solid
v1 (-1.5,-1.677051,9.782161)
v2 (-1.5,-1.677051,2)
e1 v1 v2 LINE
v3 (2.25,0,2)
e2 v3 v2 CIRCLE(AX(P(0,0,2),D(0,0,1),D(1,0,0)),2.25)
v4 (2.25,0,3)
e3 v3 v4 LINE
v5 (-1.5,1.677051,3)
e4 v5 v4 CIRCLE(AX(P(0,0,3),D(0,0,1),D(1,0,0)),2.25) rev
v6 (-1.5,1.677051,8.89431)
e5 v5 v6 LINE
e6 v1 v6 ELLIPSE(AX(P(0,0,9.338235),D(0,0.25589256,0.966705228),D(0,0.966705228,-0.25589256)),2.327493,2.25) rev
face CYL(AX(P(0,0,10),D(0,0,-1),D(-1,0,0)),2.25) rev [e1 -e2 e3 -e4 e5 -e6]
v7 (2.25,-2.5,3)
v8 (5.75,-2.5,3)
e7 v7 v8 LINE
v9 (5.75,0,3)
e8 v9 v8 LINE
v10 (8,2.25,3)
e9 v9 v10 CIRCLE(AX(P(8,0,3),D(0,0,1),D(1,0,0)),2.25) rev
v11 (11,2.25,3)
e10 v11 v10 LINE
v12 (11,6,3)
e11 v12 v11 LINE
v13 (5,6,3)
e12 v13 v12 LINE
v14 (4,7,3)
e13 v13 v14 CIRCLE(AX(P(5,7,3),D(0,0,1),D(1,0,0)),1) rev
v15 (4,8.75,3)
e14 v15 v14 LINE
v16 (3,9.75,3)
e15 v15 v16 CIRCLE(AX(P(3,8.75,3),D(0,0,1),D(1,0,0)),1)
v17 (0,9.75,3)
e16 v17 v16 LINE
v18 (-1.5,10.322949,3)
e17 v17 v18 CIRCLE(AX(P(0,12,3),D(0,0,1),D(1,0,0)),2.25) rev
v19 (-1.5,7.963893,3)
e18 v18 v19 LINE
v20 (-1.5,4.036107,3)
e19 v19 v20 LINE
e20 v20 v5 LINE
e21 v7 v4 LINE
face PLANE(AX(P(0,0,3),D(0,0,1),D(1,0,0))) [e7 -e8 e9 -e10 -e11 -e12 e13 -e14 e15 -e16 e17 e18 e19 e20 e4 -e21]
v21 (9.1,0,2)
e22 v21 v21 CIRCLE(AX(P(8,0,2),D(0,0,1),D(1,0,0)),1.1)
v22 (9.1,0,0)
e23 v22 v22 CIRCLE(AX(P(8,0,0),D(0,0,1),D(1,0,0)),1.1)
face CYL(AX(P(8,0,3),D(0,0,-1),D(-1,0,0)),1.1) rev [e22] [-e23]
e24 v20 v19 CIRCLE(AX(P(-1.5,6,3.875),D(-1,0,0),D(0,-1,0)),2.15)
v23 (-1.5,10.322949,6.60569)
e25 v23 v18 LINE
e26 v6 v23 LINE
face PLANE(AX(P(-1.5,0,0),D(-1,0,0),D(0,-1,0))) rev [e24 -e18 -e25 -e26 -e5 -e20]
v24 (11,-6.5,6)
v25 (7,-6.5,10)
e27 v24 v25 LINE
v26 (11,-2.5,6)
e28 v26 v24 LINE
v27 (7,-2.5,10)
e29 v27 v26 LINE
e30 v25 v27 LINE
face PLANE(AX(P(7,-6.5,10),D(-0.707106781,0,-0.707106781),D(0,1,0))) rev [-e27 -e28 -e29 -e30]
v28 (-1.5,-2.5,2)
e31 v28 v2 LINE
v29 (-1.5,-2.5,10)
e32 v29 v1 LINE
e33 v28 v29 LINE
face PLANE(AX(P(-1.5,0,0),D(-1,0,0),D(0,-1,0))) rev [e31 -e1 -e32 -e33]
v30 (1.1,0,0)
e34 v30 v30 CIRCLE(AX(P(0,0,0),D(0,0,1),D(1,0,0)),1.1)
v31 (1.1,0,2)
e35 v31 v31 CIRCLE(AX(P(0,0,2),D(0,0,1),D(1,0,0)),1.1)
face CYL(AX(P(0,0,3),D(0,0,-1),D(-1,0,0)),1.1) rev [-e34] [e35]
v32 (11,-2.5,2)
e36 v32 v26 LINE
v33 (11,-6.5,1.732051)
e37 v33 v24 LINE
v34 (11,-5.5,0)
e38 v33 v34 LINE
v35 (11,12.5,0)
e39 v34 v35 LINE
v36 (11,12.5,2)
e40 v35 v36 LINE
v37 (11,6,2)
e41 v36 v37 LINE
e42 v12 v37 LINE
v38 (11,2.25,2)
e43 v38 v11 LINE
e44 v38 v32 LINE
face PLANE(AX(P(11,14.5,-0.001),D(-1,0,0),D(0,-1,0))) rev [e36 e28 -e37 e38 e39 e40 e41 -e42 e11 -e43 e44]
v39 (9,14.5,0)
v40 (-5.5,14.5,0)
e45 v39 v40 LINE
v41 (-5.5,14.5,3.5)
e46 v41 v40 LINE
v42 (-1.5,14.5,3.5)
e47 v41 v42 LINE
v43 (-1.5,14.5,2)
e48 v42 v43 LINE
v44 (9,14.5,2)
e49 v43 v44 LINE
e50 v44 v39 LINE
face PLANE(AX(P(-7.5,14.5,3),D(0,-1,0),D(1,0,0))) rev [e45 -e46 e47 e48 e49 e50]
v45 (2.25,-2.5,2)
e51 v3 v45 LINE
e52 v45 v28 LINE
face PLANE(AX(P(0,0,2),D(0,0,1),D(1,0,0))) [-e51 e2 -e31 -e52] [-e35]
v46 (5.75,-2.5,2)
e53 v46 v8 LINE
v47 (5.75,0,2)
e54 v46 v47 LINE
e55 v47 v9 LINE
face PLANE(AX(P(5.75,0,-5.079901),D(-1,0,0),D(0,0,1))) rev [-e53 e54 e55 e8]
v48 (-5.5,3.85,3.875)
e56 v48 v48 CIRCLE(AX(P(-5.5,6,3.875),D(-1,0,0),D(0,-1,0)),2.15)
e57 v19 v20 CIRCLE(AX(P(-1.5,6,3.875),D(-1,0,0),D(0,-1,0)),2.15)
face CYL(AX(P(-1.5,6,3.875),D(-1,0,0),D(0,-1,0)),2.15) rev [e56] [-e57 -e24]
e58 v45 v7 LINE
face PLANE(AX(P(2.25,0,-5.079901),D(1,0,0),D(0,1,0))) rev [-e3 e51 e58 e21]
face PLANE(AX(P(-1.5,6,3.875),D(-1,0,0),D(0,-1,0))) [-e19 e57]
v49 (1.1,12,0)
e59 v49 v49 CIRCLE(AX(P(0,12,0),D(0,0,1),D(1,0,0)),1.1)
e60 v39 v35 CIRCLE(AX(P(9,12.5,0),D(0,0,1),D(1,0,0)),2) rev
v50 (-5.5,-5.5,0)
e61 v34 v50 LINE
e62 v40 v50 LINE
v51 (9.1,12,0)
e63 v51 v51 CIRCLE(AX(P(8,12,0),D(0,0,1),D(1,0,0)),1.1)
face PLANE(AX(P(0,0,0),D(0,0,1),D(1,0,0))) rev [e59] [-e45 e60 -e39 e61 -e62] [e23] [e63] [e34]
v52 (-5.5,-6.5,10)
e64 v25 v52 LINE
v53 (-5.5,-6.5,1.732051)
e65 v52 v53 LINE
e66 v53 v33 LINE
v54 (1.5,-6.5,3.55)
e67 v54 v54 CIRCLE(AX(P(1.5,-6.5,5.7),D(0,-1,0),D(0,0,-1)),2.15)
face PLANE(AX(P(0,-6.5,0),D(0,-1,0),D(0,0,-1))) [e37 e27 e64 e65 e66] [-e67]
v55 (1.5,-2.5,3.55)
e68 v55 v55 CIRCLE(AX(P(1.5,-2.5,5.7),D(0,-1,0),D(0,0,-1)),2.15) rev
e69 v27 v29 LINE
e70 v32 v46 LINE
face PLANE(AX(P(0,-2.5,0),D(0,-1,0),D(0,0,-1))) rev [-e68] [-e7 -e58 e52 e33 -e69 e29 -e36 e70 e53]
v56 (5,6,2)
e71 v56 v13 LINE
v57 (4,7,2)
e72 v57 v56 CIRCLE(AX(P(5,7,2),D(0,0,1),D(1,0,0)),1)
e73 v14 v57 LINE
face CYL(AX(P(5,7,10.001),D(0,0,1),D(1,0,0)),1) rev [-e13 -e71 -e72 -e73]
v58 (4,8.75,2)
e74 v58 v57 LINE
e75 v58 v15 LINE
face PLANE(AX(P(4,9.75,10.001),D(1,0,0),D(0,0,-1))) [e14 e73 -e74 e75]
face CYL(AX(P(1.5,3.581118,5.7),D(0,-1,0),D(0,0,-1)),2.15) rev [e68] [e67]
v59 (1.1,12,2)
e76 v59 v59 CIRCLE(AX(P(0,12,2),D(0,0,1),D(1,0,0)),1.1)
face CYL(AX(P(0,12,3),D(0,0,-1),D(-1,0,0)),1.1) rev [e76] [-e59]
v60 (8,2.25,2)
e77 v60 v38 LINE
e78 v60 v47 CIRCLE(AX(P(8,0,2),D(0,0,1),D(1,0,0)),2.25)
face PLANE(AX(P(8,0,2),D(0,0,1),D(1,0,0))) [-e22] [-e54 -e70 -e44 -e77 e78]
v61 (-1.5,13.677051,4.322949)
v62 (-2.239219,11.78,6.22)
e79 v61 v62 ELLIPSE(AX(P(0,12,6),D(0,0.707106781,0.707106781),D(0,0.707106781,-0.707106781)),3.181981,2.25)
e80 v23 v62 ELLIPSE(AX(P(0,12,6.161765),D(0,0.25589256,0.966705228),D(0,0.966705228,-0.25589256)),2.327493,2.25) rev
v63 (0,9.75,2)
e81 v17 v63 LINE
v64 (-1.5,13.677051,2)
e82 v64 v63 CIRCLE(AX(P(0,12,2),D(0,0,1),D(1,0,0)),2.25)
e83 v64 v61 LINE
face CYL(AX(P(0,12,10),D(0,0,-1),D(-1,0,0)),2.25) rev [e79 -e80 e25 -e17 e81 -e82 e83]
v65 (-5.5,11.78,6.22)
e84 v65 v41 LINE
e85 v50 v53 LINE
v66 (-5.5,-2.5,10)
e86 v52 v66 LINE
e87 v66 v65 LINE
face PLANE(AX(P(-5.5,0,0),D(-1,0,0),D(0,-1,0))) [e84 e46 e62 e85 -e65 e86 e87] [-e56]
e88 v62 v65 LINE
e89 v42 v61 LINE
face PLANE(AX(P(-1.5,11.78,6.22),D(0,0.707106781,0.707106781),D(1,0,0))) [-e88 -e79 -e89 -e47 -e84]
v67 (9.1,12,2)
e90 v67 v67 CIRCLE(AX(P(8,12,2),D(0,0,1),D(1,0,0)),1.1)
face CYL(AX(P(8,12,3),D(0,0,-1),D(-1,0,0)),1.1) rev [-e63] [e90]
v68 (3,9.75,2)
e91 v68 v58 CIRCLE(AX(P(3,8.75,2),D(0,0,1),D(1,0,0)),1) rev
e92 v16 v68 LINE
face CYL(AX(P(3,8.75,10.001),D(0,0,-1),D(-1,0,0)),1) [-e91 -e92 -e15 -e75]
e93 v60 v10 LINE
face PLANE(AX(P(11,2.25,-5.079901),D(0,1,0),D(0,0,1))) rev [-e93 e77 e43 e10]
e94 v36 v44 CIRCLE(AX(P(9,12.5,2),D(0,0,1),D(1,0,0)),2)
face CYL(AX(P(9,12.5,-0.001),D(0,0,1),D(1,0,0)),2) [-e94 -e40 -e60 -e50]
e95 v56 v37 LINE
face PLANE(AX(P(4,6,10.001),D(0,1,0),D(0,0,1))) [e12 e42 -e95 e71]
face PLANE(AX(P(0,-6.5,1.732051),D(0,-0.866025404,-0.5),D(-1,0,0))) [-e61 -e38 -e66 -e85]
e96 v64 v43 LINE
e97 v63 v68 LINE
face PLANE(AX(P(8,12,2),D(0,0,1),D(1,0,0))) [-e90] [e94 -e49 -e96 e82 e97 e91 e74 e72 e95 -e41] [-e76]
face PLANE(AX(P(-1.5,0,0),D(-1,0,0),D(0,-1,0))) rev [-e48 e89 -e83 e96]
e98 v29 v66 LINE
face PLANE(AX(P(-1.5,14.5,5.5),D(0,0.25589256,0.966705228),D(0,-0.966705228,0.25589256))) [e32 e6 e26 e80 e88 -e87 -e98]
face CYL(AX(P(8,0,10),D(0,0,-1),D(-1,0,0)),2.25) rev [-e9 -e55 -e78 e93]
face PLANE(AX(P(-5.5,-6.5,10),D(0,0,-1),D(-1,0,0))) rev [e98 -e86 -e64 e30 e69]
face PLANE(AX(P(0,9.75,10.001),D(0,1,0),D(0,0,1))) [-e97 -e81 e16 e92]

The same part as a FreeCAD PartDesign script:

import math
import FreeCAD as App
import Part
import Sketcher


def edges_at(feature, points):
    """Names of the edges that pass closest to the given points."""
    edges = feature.Shape.Edges
    near = lambda p: min(range(len(edges)), key=lambda i: edges[i].distToShape(Part.Vertex(*p))[0])
    return sorted({f"Edge{near(p) + 1}" for p in points})

doc = App.newDocument("Part")
body = doc.addObject("PartDesign::Body", "Body")

sketch1 = doc.addObject("Sketcher::SketchObject", "Sketch")
body.addObject(sketch1)
sketch1.AttachmentSupport = (doc.XY_Plane, [""])
sketch1.MapMode = "FlatFace"
sketch1.addGeometry(Part.LineSegment(App.Vector(-7.5, 14.5, 0), App.Vector(-7.5, -2.5, 0)), False)
sketch1.addGeometry(Part.LineSegment(App.Vector(-7.5, -2.5, 0), App.Vector(15.5, -2.5, 0)), False)
sketch1.addGeometry(Part.LineSegment(App.Vector(15.5, -2.5, 0), App.Vector(15.5, 14.5, 0)), False)
sketch1.addGeometry(Part.LineSegment(App.Vector(15.5, 14.5, 0), App.Vector(-7.5, 14.5, 0)), False)
sketch1.addGeometry(Part.Circle(App.Vector(0, 0, 0), App.Vector(0, 0, 1), 1.1), False)
sketch1.addGeometry(Part.Circle(App.Vector(8, 0, 0), App.Vector(0, 0, 1), 1.1), False)
sketch1.addGeometry(Part.Circle(App.Vector(0, 12, 0), App.Vector(0, 0, 1), 1.1), False)
sketch1.addGeometry(Part.Circle(App.Vector(8, 12, 0), App.Vector(0, 0, 1), 1.1), False)
sketch1.addConstraint(Sketcher.Constraint("Coincident", 0, 2, 1, 1))
sketch1.addConstraint(Sketcher.Constraint("Coincident", 1, 2, 2, 1))
sketch1.addConstraint(Sketcher.Constraint("Coincident", 2, 2, 3, 1))
sketch1.addConstraint(Sketcher.Constraint("Coincident", 3, 2, 0, 1))
sketch1.addConstraint(Sketcher.Constraint("Vertical", 0))
sketch1.addConstraint(Sketcher.Constraint("Horizontal", 1))
sketch1.addConstraint(Sketcher.Constraint("Vertical", 2))
sketch1.addConstraint(Sketcher.Constraint("Horizontal", 3))
sketch1.addConstraint(Sketcher.Constraint("Coincident", 4, 3, -1, 1))
sketch1.addConstraint(Sketcher.Constraint("Equal", 4, 5))
sketch1.addConstraint(Sketcher.Constraint("Equal", 5, 6))
sketch1.addConstraint(Sketcher.Constraint("Equal", 6, 7))
sketch1.addConstraint(Sketcher.Constraint("PointOnObject", 5, 3, -1))
sketch1.addConstraint(Sketcher.Constraint("PointOnObject", 6, 3, -2))
sketch1.addConstraint(Sketcher.Constraint("Horizontal", 6, 3, 7, 3))
sketch1.addConstraint(Sketcher.Constraint("Vertical", 5, 3, 7, 3))
sketch1.addConstraint(Sketcher.Constraint("Diameter", 4, 2.2))
sketch1.addConstraint(Sketcher.Constraint("DistanceX", 1, 1, 1, 2, 23.0))
sketch1.addConstraint(Sketcher.Constraint("DistanceY", 0, 2, 0, 1, 17.0))
sketch1.addConstraint(Sketcher.Constraint("DistanceX", -1, 1, 5, 3, 8.0))
sketch1.addConstraint(Sketcher.Constraint("DistanceY", -1, 1, 6, 3, 12.0))
sketch1.addConstraint(Sketcher.Constraint("DistanceX", 0, 2, -1, 1, 7.5))
sketch1.addConstraint(Sketcher.Constraint("DistanceY", 0, 2, -1, 1, 2.5))
pad1 = doc.addObject("PartDesign::Pad", "Pad")
body.addObject(pad1)
pad1.Profile = sketch1
pad1.Length = 3

sketch2 = doc.addObject("Sketcher::SketchObject", "Sketch001")
body.addObject(sketch2)
sketch2.AttachmentSupport = (doc.YZ_Plane, [""])
sketch2.MapMode = "FlatFace"
sketch2.AttachmentOffset = App.Placement(App.Vector(0, 0, -7.5), App.Rotation())
sketch2.addGeometry(Part.LineSegment(App.Vector(-2, 10, 0), App.Vector(14, 6, 0)), False)
sketch2.addGeometry(Part.LineSegment(App.Vector(14, 6, 0), App.Vector(14, 0, 0)), False)
sketch2.addGeometry(Part.LineSegment(App.Vector(14, 0, 0), App.Vector(-2, 0, 0)), False)
sketch2.addGeometry(Part.LineSegment(App.Vector(-2, 0, 0), App.Vector(-2, 10, 0)), False)
sketch2.addConstraint(Sketcher.Constraint("Coincident", 0, 2, 1, 1))
sketch2.addConstraint(Sketcher.Constraint("Coincident", 1, 2, 2, 1))
sketch2.addConstraint(Sketcher.Constraint("Coincident", 2, 2, 3, 1))
sketch2.addConstraint(Sketcher.Constraint("Coincident", 3, 2, 0, 1))
sketch2.addConstraint(Sketcher.Constraint("Vertical", 1))
sketch2.addConstraint(Sketcher.Constraint("Horizontal", 2))
sketch2.addConstraint(Sketcher.Constraint("Vertical", 3))
sketch2.addConstraint(Sketcher.Constraint("PointOnObject", 1, 2, -1))
sketch2.addConstraint(Sketcher.Constraint("DistanceX", 2, 2, 2, 1, 17.0))
sketch2.addConstraint(Sketcher.Constraint("DistanceY", 3, 1, 3, 2, 10.0))
sketch2.addConstraint(Sketcher.Constraint("DistanceY", 1, 2, 1, 1, 5.5))
sketch2.addConstraint(Sketcher.Constraint("DistanceX", -1, 1, 0, 2, 14.5))
pad2 = doc.addObject("PartDesign::Pad", "Pad001")
body.addObject(pad2)
pad2.Profile = sketch2
pad2.Length = 6

sketch3 = doc.addObject("Sketcher::SketchObject", "Sketch002")
body.addObject(sketch3)
sketch3.AttachmentSupport = (doc.XY_Plane, [""])
sketch3.MapMode = "FlatFace"
sketch3.AttachmentOffset = App.Placement(App.Vector(0, 0, 3), App.Rotation())
sketch3.addGeometry(Part.Circle(App.Vector(0, 12, 0), App.Vector(0, 0, 1), 2.2), False)
sketch3.addGeometry(Part.Circle(App.Vector(8, 12, 0), App.Vector(0, 0, 1), 2.2), False)
sketch3.addGeometry(Part.Circle(App.Vector(0, 0, 0), App.Vector(0, 0, 1), 2.2), False)
sketch3.addGeometry(Part.Circle(App.Vector(8, 0, 0), App.Vector(0, 0, 1), 2.2), False)
sketch3.addConstraint(Sketcher.Constraint("Coincident", 2, 3, -1, 1))
sketch3.addConstraint(Sketcher.Constraint("Equal", 0, 1))
sketch3.addConstraint(Sketcher.Constraint("Equal", 1, 2))
sketch3.addConstraint(Sketcher.Constraint("Equal", 2, 3))
sketch3.addConstraint(Sketcher.Constraint("PointOnObject", 0, 3, -2))
sketch3.addConstraint(Sketcher.Constraint("PointOnObject", 3, 3, -1))
sketch3.addConstraint(Sketcher.Constraint("Horizontal", 0, 3, 1, 3))
sketch3.addConstraint(Sketcher.Constraint("Vertical", 1, 3, 3, 3))
sketch3.addConstraint(Sketcher.Constraint("Diameter", 0, 4.5))
sketch3.addConstraint(Sketcher.Constraint("DistanceY", -1, 1, 0, 3, 12.0))
sketch3.addConstraint(Sketcher.Constraint("DistanceX", -1, 1, 1, 3, 8.0))
pocket1 = doc.addObject("PartDesign::Pocket", "Pocket")
body.addObject(pocket1)
pocket1.Profile = sketch3
pocket1.Type = "TwoLengths"
pocket1.Length = 23.349497
pocket1.Length2 = 1
pocket1.Reversed = True

sketch4 = doc.addObject("Sketcher::SketchObject", "Sketch003")
body.addObject(sketch4)
sketch4.AttachmentSupport = (doc.XY_Plane, [""])
sketch4.MapMode = "FlatFace"
sketch4.AttachmentOffset = App.Placement(App.Vector(0, 0, 3), App.Rotation())
sketch4.addGeometry(Part.LineSegment(App.Vector(11, 14.5, 0), App.Vector(11, -2.5, 0)), False)
sketch4.addGeometry(Part.LineSegment(App.Vector(11, -2.5, 0), App.Vector(15.5, -2.5, 0)), False)
sketch4.addGeometry(Part.LineSegment(App.Vector(15.5, -2.5, 0), App.Vector(15.5, 14.5, 0)), False)
sketch4.addGeometry(Part.LineSegment(App.Vector(15.5, 14.5, 0), App.Vector(11, 14.5, 0)), False)
sketch4.addConstraint(Sketcher.Constraint("Coincident", 0, 2, 1, 1))
sketch4.addConstraint(Sketcher.Constraint("Coincident", 1, 2, 2, 1))
sketch4.addConstraint(Sketcher.Constraint("Coincident", 2, 2, 3, 1))
sketch4.addConstraint(Sketcher.Constraint("Coincident", 3, 2, 0, 1))
sketch4.addConstraint(Sketcher.Constraint("Vertical", 0))
sketch4.addConstraint(Sketcher.Constraint("Horizontal", 1))
sketch4.addConstraint(Sketcher.Constraint("Vertical", 2))
sketch4.addConstraint(Sketcher.Constraint("Horizontal", 3))
sketch4.addConstraint(Sketcher.Constraint("DistanceY", 0, 2, 0, 1, 17.0))
sketch4.addConstraint(Sketcher.Constraint("DistanceX", 1, 1, 1, 2, 4.5))
sketch4.addConstraint(Sketcher.Constraint("DistanceX", -1, 1, 0, 2, 11.0))
sketch4.addConstraint(Sketcher.Constraint("DistanceY", 0, 2, -1, 1, 2.5))
pocket2 = doc.addObject("PartDesign::Pocket", "Pocket001")
body.addObject(pocket2)
pocket2.Profile = sketch4
pocket2.Type = "UpToFirst"

sketch5 = doc.addObject("Sketcher::SketchObject", "Sketch004")
body.addObject(sketch5)
sketch5.AttachmentSupport = (doc.YZ_Plane, [""])
sketch5.MapMode = "FlatFace"
sketch5.AttachmentOffset = App.Placement(App.Vector(0, 0, -7.5), App.Rotation())
sketch5.addGeometry(Part.LineSegment(App.Vector(14, 0, 0), App.Vector(-2, 0, 0)), False)
sketch5.addGeometry(Part.LineSegment(App.Vector(-2, 0, 0), App.Vector(-2, 10, 0)), False)
sketch5.addGeometry(Part.LineSegment(App.Vector(-2, 10, 0), App.Vector(14, 6, 0)), False)
sketch5.addGeometry(Part.LineSegment(App.Vector(14, 6, 0), App.Vector(14, 0, 0)), False)
sketch5.addConstraint(Sketcher.Constraint("Coincident", 0, 2, 1, 1))
sketch5.addConstraint(Sketcher.Constraint("Coincident", 1, 2, 2, 1))
sketch5.addConstraint(Sketcher.Constraint("Coincident", 2, 2, 3, 1))
sketch5.addConstraint(Sketcher.Constraint("Coincident", 3, 2, 0, 1))
sketch5.addConstraint(Sketcher.Constraint("Horizontal", 0))
sketch5.addConstraint(Sketcher.Constraint("Vertical", 1))
sketch5.addConstraint(Sketcher.Constraint("Vertical", 3))
sketch5.addConstraint(Sketcher.Constraint("PointOnObject", 0, 2, -1))
sketch5.addConstraint(Sketcher.Constraint("DistanceX", 0, 2, 0, 1, 17.0))
sketch5.addConstraint(Sketcher.Constraint("DistanceY", 1, 1, 1, 2, 10.0))
sketch5.addConstraint(Sketcher.Constraint("DistanceY", 3, 2, 3, 1, 5.5))
sketch5.addConstraint(Sketcher.Constraint("DistanceX", 0, 2, -1, 1, 2.5))
pocket3 = doc.addObject("PartDesign::Pocket", "Pocket002")
body.addObject(pocket3)
pocket3.Profile = sketch5
pocket3.Length = 2
pocket3.Reversed = True

sketch6 = doc.addObject("Sketcher::SketchObject", "Sketch005")
body.addObject(sketch6)
sketch6.AttachmentSupport = (doc.YZ_Plane, [""])
sketch6.MapMode = "FlatFace"
sketch6.AttachmentOffset = App.Placement(App.Vector(0, 0, -5.5), App.Rotation())
sketch6.addGeometry(Part.Circle(App.Vector(6, 3.9, 0), App.Vector(0, 0, 1), 2.1), False)
sketch6.addConstraint(Sketcher.Constraint("Diameter", 0, 4.3))
sketch6.addConstraint(Sketcher.Constraint("DistanceX", -1, 1, 0, 3, 6.0))
sketch6.addConstraint(Sketcher.Constraint("DistanceY", -1, 1, 0, 3, 3.875))
pocket4 = doc.addObject("PartDesign::Pocket", "Pocket003")
body.addObject(pocket4)
pocket4.Profile = sketch6
pocket4.Length = 4
pocket4.Reversed = True

sketch7 = doc.addObject("Sketcher::SketchObject", "Sketch006")
body.addObject(sketch7)
sketch7.AttachmentSupport = (doc.XZ_Plane, [""])
sketch7.MapMode = "FlatFace"
sketch7.AttachmentOffset = App.Placement(App.Vector(0, 0, 2.5), App.Rotation())
sketch7.addGeometry(Part.LineSegment(App.Vector(-6, 10, 0), App.Vector(-6, 0, 0)), False)
sketch7.addGeometry(Part.LineSegment(App.Vector(-6, 0, 0), App.Vector(11, 0, 0)), False)
sketch7.addGeometry(Part.LineSegment(App.Vector(11, 0, 0), App.Vector(11, 10, 0)), False)
sketch7.addGeometry(Part.LineSegment(App.Vector(11, 10, 0), App.Vector(-6, 10, 0)), False)
sketch7.addConstraint(Sketcher.Constraint("Coincident", 0, 2, 1, 1))
sketch7.addConstraint(Sketcher.Constraint("Coincident", 1, 2, 2, 1))
sketch7.addConstraint(Sketcher.Constraint("Coincident", 2, 2, 3, 1))
sketch7.addConstraint(Sketcher.Constraint("Coincident", 3, 2, 0, 1))
sketch7.addConstraint(Sketcher.Constraint("Vertical", 0))
sketch7.addConstraint(Sketcher.Constraint("Horizontal", 1))
sketch7.addConstraint(Sketcher.Constraint("Vertical", 2))
sketch7.addConstraint(Sketcher.Constraint("Horizontal", 3))
sketch7.addConstraint(Sketcher.Constraint("PointOnObject", 0, 2, -1))
sketch7.addConstraint(Sketcher.Constraint("DistanceY", 0, 2, 0, 1, 10.0))
sketch7.addConstraint(Sketcher.Constraint("DistanceX", 1, 1, 1, 2, 16.5))
sketch7.addConstraint(Sketcher.Constraint("DistanceX", -1, 1, 1, 2, 11.0))
pad3 = doc.addObject("PartDesign::Pad", "Pad002")
body.addObject(pad3)
pad3.Profile = sketch7
pad3.Length = 4

sketch8 = doc.addObject("Sketcher::SketchObject", "Sketch007")
body.addObject(sketch8)
sketch8.AttachmentSupport = (doc.XZ_Plane, [""])
sketch8.MapMode = "FlatFace"
sketch8.AttachmentOffset = App.Placement(App.Vector(0, 0, 6.5), App.Rotation())
sketch8.addGeometry(Part.Circle(App.Vector(1.5, 5.7, 0), App.Vector(0, 0, 1), 2.1), False)
sketch8.addConstraint(Sketcher.Constraint("Diameter", 0, 4.3))
sketch8.addConstraint(Sketcher.Constraint("DistanceX", -1, 1, 0, 3, 1.5))
sketch8.addConstraint(Sketcher.Constraint("DistanceY", -1, 1, 0, 3, 5.7))
pocket5 = doc.addObject("PartDesign::Pocket", "Pocket004")
body.addObject(pocket5)
pocket5.Profile = sketch8
pocket5.Length = 4
doc.recompute()

chamfer = doc.addObject("PartDesign::Chamfer", "Chamfer")
body.addObject(chamfer)
chamfer.Base = (pocket5, edges_at(pocket5, [(2.75, -6.5, 0)]))
chamfer.ChamferType = "Two distances"
chamfer.Size = 1
chamfer.Size2 = 1.732051
doc.recompute()

chamfer2 = doc.addObject("PartDesign::Chamfer", "Chamfer001")
body.addObject(chamfer2)
chamfer2.Base = (chamfer, edges_at(chamfer, [(11, -4.5, 10)]))
chamfer2.Size = 4

sketch9 = doc.addObject("Sketcher::SketchObject", "Sketch008")
body.addObject(sketch9)
sketch9.AttachmentSupport = (doc.XY_Plane, [""])
sketch9.MapMode = "FlatFace"
sketch9.AttachmentOffset = App.Placement(App.Vector(0, 0, 3), App.Rotation())
sketch9.addGeometry(Part.LineSegment(App.Vector(-1.5, 14.5, 0), App.Vector(-1.5, 13.7, 0)), False)
sketch9.addGeometry(Part.ArcOfCircle(Part.Circle(App.Vector(0, 12, 0), App.Vector(0, 0, 1), 2.2), math.radians(0), math.radians(132)), False)
sketch9.addGeometry(Part.LineSegment(App.Vector(2.2, 12, 0), App.Vector(2.2, 14.5, 0)), False)
sketch9.addGeometry(Part.LineSegment(App.Vector(2.2, 14.5, 0), App.Vector(-1.5, 14.5, 0)), False)
sketch9.addGeometry(Part.LineSegment(App.Vector(5.8, 14.5, 0), App.Vector(5.8, 12, 0)), False)
sketch9.addGeometry(Part.ArcOfCircle(Part.Circle(App.Vector(8, 12, 0), App.Vector(0, 0, 1), 2.2), math.radians(-90), math.radians(180)), False)
sketch9.addGeometry(Part.LineSegment(App.Vector(8, 9.8, 0), App.Vector(11, 9.8, 0)), False)
sketch9.addGeometry(Part.LineSegment(App.Vector(11, 9.8, 0), App.Vector(11, 14.5, 0)), False)
sketch9.addGeometry(Part.LineSegment(App.Vector(11, 14.5, 0), App.Vector(5.8, 14.5, 0)), False)
sketch9.addGeometry(Part.LineSegment(App.Vector(2.2, -2.5, 0), App.Vector(2.2, 0, 0)), False)
sketch9.addGeometry(Part.ArcOfCircle(Part.Circle(App.Vector(0, 0, 0), App.Vector(0, 0, 1), 2.2), math.radians(-132), math.radians(0)), False)
sketch9.addGeometry(Part.LineSegment(App.Vector(-1.5, -1.7, 0), App.Vector(-1.5, -2.5, 0)), False)
sketch9.addGeometry(Part.LineSegment(App.Vector(-1.5, -2.5, 0), App.Vector(2.2, -2.5, 0)), False)
sketch9.addGeometry(Part.LineSegment(App.Vector(5.8, 0, 0), App.Vector(5.8, -2.5, 0)), False)
sketch9.addGeometry(Part.LineSegment(App.Vector(5.8, -2.5, 0), App.Vector(11, -2.5, 0)), False)
sketch9.addGeometry(Part.LineSegment(App.Vector(11, -2.5, 0), App.Vector(11, 2.2, 0)), False)
sketch9.addGeometry(Part.LineSegment(App.Vector(11, 2.2, 0), App.Vector(8, 2.2, 0)), False)
sketch9.addGeometry(Part.ArcOfCircle(Part.Circle(App.Vector(8, 0, 0), App.Vector(0, 0, 1), 2.2), math.radians(180), math.radians(450)), False)
sketch9.addConstraint(Sketcher.Constraint("Coincident", 0, 2, 1, 2))
sketch9.addConstraint(Sketcher.Constraint("Tangent", 1, 1, 2, 1))
sketch9.addConstraint(Sketcher.Constraint("Coincident", 2, 2, 3, 1))
sketch9.addConstraint(Sketcher.Constraint("Coincident", 3, 2, 0, 1))
sketch9.addConstraint(Sketcher.Constraint("Tangent", 4, 2, 5, 2))
sketch9.addConstraint(Sketcher.Constraint("Tangent", 5, 1, 6, 1))
sketch9.addConstraint(Sketcher.Constraint("Coincident", 6, 2, 7, 1))
sketch9.addConstraint(Sketcher.Constraint("Coincident", 7, 2, 8, 1))
sketch9.addConstraint(Sketcher.Constraint("Coincident", 8, 2, 4, 1))
sketch9.addConstraint(Sketcher.Constraint("Tangent", 9, 2, 10, 2))
sketch9.addConstraint(Sketcher.Constraint("Coincident", 10, 1, 11, 1))
sketch9.addConstraint(Sketcher.Constraint("Coincident", 11, 2, 12, 1))
sketch9.addConstraint(Sketcher.Constraint("Coincident", 12, 2, 9, 1))
sketch9.addConstraint(Sketcher.Constraint("Coincident", 13, 2, 14, 1))
sketch9.addConstraint(Sketcher.Constraint("Coincident", 14, 2, 15, 1))
sketch9.addConstraint(Sketcher.Constraint("Coincident", 15, 2, 16, 1))
sketch9.addConstraint(Sketcher.Constraint("Tangent", 16, 2, 17, 2))
sketch9.addConstraint(Sketcher.Constraint("Tangent", 17, 1, 13, 1))
sketch9.addConstraint(Sketcher.Constraint("Vertical", 0))
sketch9.addConstraint(Sketcher.Constraint("Vertical", 2))
sketch9.addConstraint(Sketcher.Constraint("Horizontal", 3))
sketch9.addConstraint(Sketcher.Constraint("Vertical", 4))
sketch9.addConstraint(Sketcher.Constraint("Horizontal", 6))
sketch9.addConstraint(Sketcher.Constraint("Vertical", 7))
sketch9.addConstraint(Sketcher.Constraint("Horizontal", 8))
sketch9.addConstraint(Sketcher.Constraint("Vertical", 9))
sketch9.addConstraint(Sketcher.Constraint("Vertical", 11))
sketch9.addConstraint(Sketcher.Constraint("Horizontal", 12))
sketch9.addConstraint(Sketcher.Constraint("Vertical", 13))
sketch9.addConstraint(Sketcher.Constraint("Horizontal", 14))
sketch9.addConstraint(Sketcher.Constraint("Vertical", 15))
sketch9.addConstraint(Sketcher.Constraint("Horizontal", 16))
sketch9.addConstraint(Sketcher.Constraint("Coincident", 10, 3, -1, 1))
sketch9.addConstraint(Sketcher.Constraint("Equal", 1, 5))
sketch9.addConstraint(Sketcher.Constraint("Equal", 5, 10))
sketch9.addConstraint(Sketcher.Constraint("Equal", 10, 17))
sketch9.addConstraint(Sketcher.Constraint("PointOnObject", 1, 3, -2))
sketch9.addConstraint(Sketcher.Constraint("PointOnObject", 17, 3, -1))
sketch9.addConstraint(Sketcher.Constraint("Horizontal", 1, 3, 5, 3))
sketch9.addConstraint(Sketcher.Constraint("Horizontal", 3, 2, 7, 2))
sketch9.addConstraint(Sketcher.Constraint("Horizontal", 12, 2, 13, 2))
sketch9.addConstraint(Sketcher.Constraint("Vertical", 5, 3, 17, 3))
sketch9.addConstraint(Sketcher.Constraint("Vertical", 3, 2, 10, 1))
sketch9.addConstraint(Sketcher.Constraint("Vertical", 7, 2, 14, 2))
sketch9.addConstraint(Sketcher.Constraint("Equal", 4, 9))
sketch9.addConstraint(Sketcher.Constraint("DistanceX", 6, 1, 6, 2, 3.0))
sketch9.addConstraint(Sketcher.Constraint("Radius", 1, 2.25))
sketch9.addConstraint(Sketcher.Constraint("DistanceY", 2, 1, 2, 2, 2.5))
sketch9.addConstraint(Sketcher.Constraint("DistanceY", -1, 1, 1, 3, 12.0))
sketch9.addConstraint(Sketcher.Constraint("DistanceX", -1, 1, 5, 3, 8.0))
sketch9.addConstraint(Sketcher.Constraint("DistanceX", 3, 2, 3, 1, 3.75))
pocket6 = doc.addObject("PartDesign::Pocket", "Pocket005")
body.addObject(pocket6)
pocket6.Profile = sketch9
pocket6.Length = 1
doc.recompute()

fillet = doc.addObject("PartDesign::Fillet", "Fillet")
body.addObject(fillet)
fillet.Base = (pocket6, edges_at(pocket6, [(11, 14.5, 1)]))
fillet.Radius = 2

sketch10 = doc.addObject("Sketcher::SketchObject", "Sketch009")
body.addObject(sketch10)
sketch10.AttachmentSupport = (doc.XY_Plane, [""])
sketch10.MapMode = "FlatFace"
sketch10.AttachmentOffset = App.Placement(App.Vector(0, 0, 2), App.Rotation())
sketch10.addGeometry(Part.LineSegment(App.Vector(11, 6, 0), App.Vector(11, 14.5, 0)), False)
sketch10.addGeometry(Part.LineSegment(App.Vector(11, 14.5, 0), App.Vector(2.2, 14.5, 0)), False)
sketch10.addGeometry(Part.LineSegment(App.Vector(2.2, 14.5, 0), App.Vector(2.2, 12, 0)), False)
sketch10.addGeometry(Part.ArcOfCircle(Part.Circle(App.Vector(0, 12, 0), App.Vector(0, 0, 1), 2.2), math.radians(-90), math.radians(0)), False)
sketch10.addGeometry(Part.LineSegment(App.Vector(0, 9.8, 0), App.Vector(4, 9.8, 0)), False)
sketch10.addGeometry(Part.LineSegment(App.Vector(4, 9.8, 0), App.Vector(4, 6, 0)), False)
sketch10.addGeometry(Part.LineSegment(App.Vector(4, 6, 0), App.Vector(11, 6, 0)), False)
sketch10.addConstraint(Sketcher.Constraint("Coincident", 0, 2, 1, 1))
sketch10.addConstraint(Sketcher.Constraint("Coincident", 1, 2, 2, 1))
sketch10.addConstraint(Sketcher.Constraint("Tangent", 2, 2, 3, 2))
sketch10.addConstraint(Sketcher.Constraint("Tangent", 3, 1, 4, 1))
sketch10.addConstraint(Sketcher.Constraint("Coincident", 4, 2, 5, 1))
sketch10.addConstraint(Sketcher.Constraint("Coincident", 5, 2, 6, 1))
sketch10.addConstraint(Sketcher.Constraint("Coincident", 6, 2, 0, 1))
sketch10.addConstraint(Sketcher.Constraint("Vertical", 0))
sketch10.addConstraint(Sketcher.Constraint("Horizontal", 1))
sketch10.addConstraint(Sketcher.Constraint("Vertical", 2))
sketch10.addConstraint(Sketcher.Constraint("Horizontal", 4))
sketch10.addConstraint(Sketcher.Constraint("Vertical", 5))
sketch10.addConstraint(Sketcher.Constraint("Horizontal", 6))
sketch10.addConstraint(Sketcher.Constraint("PointOnObject", 3, 3, -2))
sketch10.addConstraint(Sketcher.Constraint("DistanceX", 4, 1, 4, 2, 4.0))
sketch10.addConstraint(Sketcher.Constraint("DistanceX", 6, 1, 6, 2, 7.0))
sketch10.addConstraint(Sketcher.Constraint("Radius", 3, 2.25))
sketch10.addConstraint(Sketcher.Constraint("DistanceY", 0, 1, 0, 2, 8.5))
sketch10.addConstraint(Sketcher.Constraint("DistanceY", 2, 2, 2, 1, 2.5))
sketch10.addConstraint(Sketcher.Constraint("DistanceY", -1, 1, 3, 3, 12.0))
pocket7 = doc.addObject("PartDesign::Pocket", "Pocket006")
body.addObject(pocket7)
pocket7.Profile = sketch10
pocket7.Length = 1
pocket7.Reversed = True
doc.recompute()

fillet2 = doc.addObject("PartDesign::Fillet", "Fillet001")
body.addObject(fillet2)
fillet2.Base = (pocket7, edges_at(pocket7, [(4, 9.75, 2.5), (4, 6, 2.5)]))
fillet2.Radius = 1
doc.recompute()

chamfer3 = doc.addObject("PartDesign::Chamfer", "Chamfer002")
body.addObject(chamfer3)
chamfer3.Base = (fillet2, edges_at(fillet2, [(-3.5, 14.5, 5.5)]))
chamfer3.ChamferType = "Two distances"
chamfer3.Size = 2
chamfer3.Size2 = 2.813681
chamfer3.FlipDirection = True

doc.recompute()
